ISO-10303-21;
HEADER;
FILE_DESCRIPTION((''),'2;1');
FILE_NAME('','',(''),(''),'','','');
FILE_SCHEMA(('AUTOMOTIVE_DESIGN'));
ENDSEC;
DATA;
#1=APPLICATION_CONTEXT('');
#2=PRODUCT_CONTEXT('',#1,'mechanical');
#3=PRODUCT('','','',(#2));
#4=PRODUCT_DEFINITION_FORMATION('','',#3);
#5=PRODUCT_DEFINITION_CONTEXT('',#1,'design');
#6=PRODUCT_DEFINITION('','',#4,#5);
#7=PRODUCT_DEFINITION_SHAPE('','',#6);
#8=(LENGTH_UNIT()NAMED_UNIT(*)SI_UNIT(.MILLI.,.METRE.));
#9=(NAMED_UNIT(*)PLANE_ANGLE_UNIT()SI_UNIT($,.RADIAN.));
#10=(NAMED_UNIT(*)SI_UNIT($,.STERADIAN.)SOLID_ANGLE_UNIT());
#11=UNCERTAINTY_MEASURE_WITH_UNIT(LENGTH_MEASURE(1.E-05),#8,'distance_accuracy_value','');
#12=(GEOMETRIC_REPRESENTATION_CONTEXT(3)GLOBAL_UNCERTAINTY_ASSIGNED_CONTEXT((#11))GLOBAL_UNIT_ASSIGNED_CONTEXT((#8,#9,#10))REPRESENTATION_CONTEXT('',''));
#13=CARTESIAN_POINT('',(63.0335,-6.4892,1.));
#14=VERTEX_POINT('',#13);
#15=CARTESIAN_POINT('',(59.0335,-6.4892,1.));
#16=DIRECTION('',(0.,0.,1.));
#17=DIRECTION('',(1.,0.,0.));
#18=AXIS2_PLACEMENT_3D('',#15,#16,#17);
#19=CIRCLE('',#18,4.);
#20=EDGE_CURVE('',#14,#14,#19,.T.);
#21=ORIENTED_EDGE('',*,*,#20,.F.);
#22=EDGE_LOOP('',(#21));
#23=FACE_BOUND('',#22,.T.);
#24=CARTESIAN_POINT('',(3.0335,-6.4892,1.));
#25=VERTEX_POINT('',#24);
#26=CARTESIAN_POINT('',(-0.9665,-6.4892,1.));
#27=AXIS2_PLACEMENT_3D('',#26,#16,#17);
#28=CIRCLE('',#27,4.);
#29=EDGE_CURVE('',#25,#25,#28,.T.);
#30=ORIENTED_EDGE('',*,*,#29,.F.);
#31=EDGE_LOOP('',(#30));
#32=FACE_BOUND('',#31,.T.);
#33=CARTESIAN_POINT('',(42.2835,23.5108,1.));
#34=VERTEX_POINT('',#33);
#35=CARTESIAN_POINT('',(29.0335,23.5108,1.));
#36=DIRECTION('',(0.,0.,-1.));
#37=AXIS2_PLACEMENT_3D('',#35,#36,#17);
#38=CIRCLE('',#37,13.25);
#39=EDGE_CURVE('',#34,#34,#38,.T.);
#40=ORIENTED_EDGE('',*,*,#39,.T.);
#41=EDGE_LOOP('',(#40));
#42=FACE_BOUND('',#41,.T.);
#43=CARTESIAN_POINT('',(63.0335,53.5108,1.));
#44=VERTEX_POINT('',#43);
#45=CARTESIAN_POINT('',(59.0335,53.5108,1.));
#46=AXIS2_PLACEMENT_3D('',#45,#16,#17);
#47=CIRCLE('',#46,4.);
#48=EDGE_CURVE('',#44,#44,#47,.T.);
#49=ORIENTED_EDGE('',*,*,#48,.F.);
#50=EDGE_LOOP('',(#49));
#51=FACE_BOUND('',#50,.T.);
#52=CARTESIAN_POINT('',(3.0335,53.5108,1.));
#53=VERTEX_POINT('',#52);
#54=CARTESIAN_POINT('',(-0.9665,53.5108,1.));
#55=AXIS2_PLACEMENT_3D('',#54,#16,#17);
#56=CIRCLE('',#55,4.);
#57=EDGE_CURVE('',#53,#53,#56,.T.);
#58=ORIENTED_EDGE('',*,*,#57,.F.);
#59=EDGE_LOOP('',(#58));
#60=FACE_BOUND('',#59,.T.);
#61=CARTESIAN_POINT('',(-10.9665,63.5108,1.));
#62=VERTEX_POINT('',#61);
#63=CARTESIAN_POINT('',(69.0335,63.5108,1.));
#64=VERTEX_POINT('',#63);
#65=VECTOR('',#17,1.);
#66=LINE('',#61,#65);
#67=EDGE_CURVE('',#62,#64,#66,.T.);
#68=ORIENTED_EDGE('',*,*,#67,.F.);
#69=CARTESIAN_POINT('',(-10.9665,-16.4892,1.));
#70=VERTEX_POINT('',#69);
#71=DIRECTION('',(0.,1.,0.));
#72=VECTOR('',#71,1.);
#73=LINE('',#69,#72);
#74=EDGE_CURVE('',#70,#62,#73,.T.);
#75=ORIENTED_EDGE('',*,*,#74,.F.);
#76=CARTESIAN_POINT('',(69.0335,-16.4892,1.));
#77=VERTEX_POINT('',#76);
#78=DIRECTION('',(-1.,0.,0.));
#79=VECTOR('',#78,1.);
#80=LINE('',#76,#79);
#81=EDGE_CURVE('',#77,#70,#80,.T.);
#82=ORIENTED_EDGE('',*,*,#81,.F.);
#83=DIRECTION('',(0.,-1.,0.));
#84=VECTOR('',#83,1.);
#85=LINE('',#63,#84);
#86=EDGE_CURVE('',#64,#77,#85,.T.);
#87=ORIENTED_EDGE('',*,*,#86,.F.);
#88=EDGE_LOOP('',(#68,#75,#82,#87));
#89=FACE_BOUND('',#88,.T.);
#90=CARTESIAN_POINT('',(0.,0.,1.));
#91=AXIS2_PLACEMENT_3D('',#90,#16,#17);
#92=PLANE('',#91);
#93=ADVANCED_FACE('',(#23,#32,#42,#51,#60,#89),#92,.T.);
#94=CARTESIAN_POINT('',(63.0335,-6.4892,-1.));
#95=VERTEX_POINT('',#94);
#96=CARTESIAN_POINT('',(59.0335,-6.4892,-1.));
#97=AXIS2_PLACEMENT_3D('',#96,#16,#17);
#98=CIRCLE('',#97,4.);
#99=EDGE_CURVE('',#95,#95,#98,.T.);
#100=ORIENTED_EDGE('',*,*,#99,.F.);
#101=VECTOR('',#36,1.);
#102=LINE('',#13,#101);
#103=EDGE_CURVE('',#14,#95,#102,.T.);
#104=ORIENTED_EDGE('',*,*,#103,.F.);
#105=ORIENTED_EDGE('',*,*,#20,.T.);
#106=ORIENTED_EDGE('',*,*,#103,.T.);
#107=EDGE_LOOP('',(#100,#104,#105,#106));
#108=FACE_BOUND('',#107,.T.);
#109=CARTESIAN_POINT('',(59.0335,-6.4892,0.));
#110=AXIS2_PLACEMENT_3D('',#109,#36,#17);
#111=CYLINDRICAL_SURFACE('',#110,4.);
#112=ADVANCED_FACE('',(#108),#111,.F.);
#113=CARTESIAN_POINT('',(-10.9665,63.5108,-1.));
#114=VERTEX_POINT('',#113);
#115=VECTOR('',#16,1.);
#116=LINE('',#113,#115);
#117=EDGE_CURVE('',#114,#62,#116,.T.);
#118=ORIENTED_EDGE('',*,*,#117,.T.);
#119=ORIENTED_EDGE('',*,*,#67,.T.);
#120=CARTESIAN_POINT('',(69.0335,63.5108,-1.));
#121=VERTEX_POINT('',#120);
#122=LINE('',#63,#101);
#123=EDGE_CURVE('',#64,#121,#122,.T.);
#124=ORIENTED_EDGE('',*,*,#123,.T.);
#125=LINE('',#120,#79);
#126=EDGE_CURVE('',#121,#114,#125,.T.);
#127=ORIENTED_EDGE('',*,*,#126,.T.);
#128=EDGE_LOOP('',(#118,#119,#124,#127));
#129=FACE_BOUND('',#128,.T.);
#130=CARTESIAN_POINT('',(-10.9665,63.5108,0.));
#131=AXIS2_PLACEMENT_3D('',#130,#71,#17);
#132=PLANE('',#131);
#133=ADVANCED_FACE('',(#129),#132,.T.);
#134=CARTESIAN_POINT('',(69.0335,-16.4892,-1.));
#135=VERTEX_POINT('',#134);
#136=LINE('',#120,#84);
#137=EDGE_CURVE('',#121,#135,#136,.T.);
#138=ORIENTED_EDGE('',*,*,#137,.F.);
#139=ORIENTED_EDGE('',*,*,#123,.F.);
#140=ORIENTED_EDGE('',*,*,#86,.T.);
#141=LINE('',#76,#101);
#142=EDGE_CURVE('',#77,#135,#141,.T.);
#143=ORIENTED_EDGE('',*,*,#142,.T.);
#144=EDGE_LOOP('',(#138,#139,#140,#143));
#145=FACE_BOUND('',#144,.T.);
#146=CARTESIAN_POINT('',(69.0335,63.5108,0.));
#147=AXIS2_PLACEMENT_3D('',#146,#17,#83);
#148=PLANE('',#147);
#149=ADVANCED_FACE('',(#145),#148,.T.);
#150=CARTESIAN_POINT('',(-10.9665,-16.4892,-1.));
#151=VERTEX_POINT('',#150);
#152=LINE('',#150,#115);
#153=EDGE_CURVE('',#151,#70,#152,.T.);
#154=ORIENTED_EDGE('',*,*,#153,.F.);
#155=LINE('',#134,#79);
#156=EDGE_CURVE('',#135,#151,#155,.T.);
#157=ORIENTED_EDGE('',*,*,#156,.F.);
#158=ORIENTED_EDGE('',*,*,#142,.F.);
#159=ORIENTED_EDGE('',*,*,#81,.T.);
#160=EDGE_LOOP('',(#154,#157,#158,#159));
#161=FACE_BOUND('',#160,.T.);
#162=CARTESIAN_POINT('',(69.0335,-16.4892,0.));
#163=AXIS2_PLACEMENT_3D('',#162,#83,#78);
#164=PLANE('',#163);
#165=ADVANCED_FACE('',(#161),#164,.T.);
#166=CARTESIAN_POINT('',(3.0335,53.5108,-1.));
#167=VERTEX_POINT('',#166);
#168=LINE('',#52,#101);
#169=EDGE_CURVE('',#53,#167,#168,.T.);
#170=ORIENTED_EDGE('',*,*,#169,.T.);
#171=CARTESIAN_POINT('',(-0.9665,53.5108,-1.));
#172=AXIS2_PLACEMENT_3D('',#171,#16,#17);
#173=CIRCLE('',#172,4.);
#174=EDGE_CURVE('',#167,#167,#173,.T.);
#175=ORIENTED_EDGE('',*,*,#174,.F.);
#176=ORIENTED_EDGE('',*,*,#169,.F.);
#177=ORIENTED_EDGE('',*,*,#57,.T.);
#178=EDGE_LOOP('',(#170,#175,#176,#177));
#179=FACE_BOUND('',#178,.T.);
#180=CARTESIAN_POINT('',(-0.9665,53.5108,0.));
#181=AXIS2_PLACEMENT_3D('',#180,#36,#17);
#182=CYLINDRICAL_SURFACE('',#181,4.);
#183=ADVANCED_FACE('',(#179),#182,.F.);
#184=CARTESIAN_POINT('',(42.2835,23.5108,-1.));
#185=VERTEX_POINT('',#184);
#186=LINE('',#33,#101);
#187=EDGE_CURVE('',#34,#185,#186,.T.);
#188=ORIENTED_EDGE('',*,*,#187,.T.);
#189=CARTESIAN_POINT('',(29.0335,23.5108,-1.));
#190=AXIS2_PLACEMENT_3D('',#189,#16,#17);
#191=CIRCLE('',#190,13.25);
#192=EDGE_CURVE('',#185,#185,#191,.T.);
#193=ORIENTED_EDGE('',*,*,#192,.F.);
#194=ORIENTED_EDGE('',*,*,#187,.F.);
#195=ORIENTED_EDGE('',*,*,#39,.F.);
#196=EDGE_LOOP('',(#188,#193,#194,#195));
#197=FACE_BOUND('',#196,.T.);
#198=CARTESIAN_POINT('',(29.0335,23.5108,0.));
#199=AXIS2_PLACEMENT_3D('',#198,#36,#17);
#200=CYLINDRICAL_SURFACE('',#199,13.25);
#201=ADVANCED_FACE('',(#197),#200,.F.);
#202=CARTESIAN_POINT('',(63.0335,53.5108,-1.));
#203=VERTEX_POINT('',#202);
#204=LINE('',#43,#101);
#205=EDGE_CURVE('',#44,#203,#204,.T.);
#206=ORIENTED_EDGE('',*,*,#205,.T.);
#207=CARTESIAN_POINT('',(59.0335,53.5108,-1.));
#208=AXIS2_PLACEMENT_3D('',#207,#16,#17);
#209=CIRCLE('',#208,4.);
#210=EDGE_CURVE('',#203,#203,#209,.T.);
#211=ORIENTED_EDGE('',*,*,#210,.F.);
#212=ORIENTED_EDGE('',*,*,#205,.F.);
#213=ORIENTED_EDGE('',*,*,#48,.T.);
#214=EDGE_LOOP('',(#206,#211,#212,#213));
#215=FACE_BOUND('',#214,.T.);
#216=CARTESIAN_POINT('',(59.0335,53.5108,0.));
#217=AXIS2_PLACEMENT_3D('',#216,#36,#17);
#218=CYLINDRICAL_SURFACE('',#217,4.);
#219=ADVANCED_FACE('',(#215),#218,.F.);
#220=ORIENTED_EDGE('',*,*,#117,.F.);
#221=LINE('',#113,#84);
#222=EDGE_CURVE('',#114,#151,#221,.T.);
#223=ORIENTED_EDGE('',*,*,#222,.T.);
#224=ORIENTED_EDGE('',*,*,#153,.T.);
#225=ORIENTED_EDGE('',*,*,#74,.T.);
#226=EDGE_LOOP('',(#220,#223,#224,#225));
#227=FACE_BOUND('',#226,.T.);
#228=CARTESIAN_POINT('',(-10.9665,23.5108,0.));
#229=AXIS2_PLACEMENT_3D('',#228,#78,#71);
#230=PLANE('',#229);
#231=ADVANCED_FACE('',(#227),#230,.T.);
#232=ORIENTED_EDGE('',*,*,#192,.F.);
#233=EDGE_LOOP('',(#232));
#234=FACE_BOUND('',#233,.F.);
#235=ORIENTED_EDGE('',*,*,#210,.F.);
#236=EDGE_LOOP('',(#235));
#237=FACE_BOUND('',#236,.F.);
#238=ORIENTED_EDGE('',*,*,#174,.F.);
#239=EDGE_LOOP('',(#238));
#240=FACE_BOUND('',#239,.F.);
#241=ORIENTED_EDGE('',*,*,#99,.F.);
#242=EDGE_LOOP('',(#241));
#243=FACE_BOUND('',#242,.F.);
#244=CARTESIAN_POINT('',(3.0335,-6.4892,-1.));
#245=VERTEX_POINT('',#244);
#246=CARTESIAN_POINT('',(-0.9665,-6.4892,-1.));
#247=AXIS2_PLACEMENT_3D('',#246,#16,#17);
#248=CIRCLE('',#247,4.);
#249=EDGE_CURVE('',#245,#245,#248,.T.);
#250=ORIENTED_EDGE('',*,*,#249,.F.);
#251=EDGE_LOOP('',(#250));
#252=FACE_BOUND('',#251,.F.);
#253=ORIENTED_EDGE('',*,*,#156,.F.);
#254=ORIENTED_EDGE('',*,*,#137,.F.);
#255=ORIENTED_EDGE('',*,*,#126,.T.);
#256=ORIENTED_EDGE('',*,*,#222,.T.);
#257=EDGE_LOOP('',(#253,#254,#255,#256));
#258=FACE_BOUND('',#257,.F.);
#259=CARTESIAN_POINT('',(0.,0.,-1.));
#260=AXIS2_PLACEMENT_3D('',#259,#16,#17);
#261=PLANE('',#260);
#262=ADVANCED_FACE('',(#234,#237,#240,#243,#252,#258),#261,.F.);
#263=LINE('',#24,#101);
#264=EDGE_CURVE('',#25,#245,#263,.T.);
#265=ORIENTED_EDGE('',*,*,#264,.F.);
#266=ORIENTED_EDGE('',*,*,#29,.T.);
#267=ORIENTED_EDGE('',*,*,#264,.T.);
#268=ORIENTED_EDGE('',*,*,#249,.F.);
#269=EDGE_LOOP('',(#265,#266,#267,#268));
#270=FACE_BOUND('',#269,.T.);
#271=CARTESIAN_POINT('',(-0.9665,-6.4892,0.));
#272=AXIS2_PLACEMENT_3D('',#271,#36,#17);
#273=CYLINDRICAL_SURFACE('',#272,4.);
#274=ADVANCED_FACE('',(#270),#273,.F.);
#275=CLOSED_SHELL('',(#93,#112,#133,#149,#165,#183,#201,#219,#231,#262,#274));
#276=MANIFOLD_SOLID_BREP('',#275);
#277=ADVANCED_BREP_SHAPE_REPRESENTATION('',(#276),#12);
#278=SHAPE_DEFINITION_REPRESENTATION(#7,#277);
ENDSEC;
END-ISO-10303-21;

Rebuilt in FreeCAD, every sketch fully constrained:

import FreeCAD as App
import Part
import Sketcher
Q = App.Units.Quantity

doc = App.newDocument("Part")
body = doc.addObject("PartDesign::Body", "Body")

sketch1 = doc.addObject("Sketcher::SketchObject", "Sketch")
body.addObject(sketch1)
sketch1.AttachmentSupport = (doc.XY_Plane, [""])
sketch1.MapMode = "FlatFace"
sketch1.addGeometry([
    Part.LineSegment(App.Vector(-11, 63.5, 0), App.Vector(-11, -16.5, 0)),
    Part.LineSegment(App.Vector(-11, -16.5, 0), App.Vector(69, -16.5, 0)),
    Part.LineSegment(App.Vector(69, -16.5, 0), App.Vector(69, 63.5, 0)),
    Part.LineSegment(App.Vector(69, 63.5, 0), App.Vector(-11, 63.5, 0)),
    Part.Circle(App.Vector(-1, 53.5, 0), App.Vector(0, 0, 1), 4),
    Part.Circle(App.Vector(59, -6.5, 0), App.Vector(0, 0, 1), 4),
    Part.Circle(App.Vector(59, 53.5, 0), App.Vector(0, 0, 1), 4),
    Part.Circle(App.Vector(-1, -6.5, 0), App.Vector(0, 0, 1), 4),
], False)
sketch1.addConstraint([
    Sketcher.Constraint("Coincident", 0, 2, 1, 1),
    Sketcher.Constraint("Coincident", 1, 2, 2, 1),
    Sketcher.Constraint("Coincident", 2, 2, 3, 1),
    Sketcher.Constraint("Coincident", 3, 2, 0, 1),
    Sketcher.Constraint("Vertical", 0),
    Sketcher.Constraint("Horizontal", 1),
    Sketcher.Constraint("Vertical", 2),
    Sketcher.Constraint("Horizontal", 3),
    Sketcher.Constraint("Equal", 4, 5),
    Sketcher.Constraint("Equal", 5, 6),
    Sketcher.Constraint("Equal", 6, 7),
    Sketcher.Constraint("Horizontal", 4, 3, 6, 3),
    Sketcher.Constraint("Horizontal", 5, 3, 7, 3),
    Sketcher.Constraint("Vertical", 5, 3, 6, 3),
    Sketcher.Constraint("Vertical", 4, 3, 7, 3),
    Sketcher.Constraint("Equal", 3, 0),
    Sketcher.Constraint("Diameter", 4, Q("8 mm")),
    Sketcher.Constraint("DistanceX", 1, 1, 1, 2, Q("80 mm")),
    Sketcher.Constraint("DistanceX", 0, 2, 7, 3, Q("10 mm")),
    Sketcher.Constraint("DistanceY", 0, 2, 7, 3, Q("10 mm")),
    Sketcher.Constraint("DistanceX", 5, 3, 1, 2, Q("10 mm")),
    Sketcher.Constraint("DistanceY", 6, 3, 2, 2, Q("10 mm")),
    Sketcher.Constraint("DistanceX", 4, 3, -1, 1, Q("0.9665 mm")),
    Sketcher.Constraint("DistanceY", -1, 1, 4, 3, Q("53.5108 mm")),
])
pad1 = doc.addObject("PartDesign::Pad", "Pad")
body.addObject(pad1)
pad1.Profile = sketch1
pad1.Length = 2
pad1.Midplane = True

sketch2 = doc.addObject("Sketcher::SketchObject", "Sketch001")
body.addObject(sketch2)
sketch2.AttachmentSupport = (doc.XY_Plane, [""])
sketch2.MapMode = "FlatFace"
sketch2.addGeometry(Part.Circle(App.Vector(29, 24, 0), App.Vector(0, 0, 1), 13), False)
sketch2.addConstraint([
    Sketcher.Constraint("Diameter", 0, Q("26.5 mm")),
    Sketcher.Constraint("DistanceX", -1, 1, 0, 3, Q("29.0335 mm")),
    Sketcher.Constraint("DistanceY", -1, 1, 0, 3, Q("23.5108 mm")),
])
pocket1 = doc.addObject("PartDesign::Pocket", "Pocket")
body.addObject(pocket1)
pocket1.Profile = sketch2
pocket1.Length = 2
pocket1.Midplane = True

doc.recompute()
